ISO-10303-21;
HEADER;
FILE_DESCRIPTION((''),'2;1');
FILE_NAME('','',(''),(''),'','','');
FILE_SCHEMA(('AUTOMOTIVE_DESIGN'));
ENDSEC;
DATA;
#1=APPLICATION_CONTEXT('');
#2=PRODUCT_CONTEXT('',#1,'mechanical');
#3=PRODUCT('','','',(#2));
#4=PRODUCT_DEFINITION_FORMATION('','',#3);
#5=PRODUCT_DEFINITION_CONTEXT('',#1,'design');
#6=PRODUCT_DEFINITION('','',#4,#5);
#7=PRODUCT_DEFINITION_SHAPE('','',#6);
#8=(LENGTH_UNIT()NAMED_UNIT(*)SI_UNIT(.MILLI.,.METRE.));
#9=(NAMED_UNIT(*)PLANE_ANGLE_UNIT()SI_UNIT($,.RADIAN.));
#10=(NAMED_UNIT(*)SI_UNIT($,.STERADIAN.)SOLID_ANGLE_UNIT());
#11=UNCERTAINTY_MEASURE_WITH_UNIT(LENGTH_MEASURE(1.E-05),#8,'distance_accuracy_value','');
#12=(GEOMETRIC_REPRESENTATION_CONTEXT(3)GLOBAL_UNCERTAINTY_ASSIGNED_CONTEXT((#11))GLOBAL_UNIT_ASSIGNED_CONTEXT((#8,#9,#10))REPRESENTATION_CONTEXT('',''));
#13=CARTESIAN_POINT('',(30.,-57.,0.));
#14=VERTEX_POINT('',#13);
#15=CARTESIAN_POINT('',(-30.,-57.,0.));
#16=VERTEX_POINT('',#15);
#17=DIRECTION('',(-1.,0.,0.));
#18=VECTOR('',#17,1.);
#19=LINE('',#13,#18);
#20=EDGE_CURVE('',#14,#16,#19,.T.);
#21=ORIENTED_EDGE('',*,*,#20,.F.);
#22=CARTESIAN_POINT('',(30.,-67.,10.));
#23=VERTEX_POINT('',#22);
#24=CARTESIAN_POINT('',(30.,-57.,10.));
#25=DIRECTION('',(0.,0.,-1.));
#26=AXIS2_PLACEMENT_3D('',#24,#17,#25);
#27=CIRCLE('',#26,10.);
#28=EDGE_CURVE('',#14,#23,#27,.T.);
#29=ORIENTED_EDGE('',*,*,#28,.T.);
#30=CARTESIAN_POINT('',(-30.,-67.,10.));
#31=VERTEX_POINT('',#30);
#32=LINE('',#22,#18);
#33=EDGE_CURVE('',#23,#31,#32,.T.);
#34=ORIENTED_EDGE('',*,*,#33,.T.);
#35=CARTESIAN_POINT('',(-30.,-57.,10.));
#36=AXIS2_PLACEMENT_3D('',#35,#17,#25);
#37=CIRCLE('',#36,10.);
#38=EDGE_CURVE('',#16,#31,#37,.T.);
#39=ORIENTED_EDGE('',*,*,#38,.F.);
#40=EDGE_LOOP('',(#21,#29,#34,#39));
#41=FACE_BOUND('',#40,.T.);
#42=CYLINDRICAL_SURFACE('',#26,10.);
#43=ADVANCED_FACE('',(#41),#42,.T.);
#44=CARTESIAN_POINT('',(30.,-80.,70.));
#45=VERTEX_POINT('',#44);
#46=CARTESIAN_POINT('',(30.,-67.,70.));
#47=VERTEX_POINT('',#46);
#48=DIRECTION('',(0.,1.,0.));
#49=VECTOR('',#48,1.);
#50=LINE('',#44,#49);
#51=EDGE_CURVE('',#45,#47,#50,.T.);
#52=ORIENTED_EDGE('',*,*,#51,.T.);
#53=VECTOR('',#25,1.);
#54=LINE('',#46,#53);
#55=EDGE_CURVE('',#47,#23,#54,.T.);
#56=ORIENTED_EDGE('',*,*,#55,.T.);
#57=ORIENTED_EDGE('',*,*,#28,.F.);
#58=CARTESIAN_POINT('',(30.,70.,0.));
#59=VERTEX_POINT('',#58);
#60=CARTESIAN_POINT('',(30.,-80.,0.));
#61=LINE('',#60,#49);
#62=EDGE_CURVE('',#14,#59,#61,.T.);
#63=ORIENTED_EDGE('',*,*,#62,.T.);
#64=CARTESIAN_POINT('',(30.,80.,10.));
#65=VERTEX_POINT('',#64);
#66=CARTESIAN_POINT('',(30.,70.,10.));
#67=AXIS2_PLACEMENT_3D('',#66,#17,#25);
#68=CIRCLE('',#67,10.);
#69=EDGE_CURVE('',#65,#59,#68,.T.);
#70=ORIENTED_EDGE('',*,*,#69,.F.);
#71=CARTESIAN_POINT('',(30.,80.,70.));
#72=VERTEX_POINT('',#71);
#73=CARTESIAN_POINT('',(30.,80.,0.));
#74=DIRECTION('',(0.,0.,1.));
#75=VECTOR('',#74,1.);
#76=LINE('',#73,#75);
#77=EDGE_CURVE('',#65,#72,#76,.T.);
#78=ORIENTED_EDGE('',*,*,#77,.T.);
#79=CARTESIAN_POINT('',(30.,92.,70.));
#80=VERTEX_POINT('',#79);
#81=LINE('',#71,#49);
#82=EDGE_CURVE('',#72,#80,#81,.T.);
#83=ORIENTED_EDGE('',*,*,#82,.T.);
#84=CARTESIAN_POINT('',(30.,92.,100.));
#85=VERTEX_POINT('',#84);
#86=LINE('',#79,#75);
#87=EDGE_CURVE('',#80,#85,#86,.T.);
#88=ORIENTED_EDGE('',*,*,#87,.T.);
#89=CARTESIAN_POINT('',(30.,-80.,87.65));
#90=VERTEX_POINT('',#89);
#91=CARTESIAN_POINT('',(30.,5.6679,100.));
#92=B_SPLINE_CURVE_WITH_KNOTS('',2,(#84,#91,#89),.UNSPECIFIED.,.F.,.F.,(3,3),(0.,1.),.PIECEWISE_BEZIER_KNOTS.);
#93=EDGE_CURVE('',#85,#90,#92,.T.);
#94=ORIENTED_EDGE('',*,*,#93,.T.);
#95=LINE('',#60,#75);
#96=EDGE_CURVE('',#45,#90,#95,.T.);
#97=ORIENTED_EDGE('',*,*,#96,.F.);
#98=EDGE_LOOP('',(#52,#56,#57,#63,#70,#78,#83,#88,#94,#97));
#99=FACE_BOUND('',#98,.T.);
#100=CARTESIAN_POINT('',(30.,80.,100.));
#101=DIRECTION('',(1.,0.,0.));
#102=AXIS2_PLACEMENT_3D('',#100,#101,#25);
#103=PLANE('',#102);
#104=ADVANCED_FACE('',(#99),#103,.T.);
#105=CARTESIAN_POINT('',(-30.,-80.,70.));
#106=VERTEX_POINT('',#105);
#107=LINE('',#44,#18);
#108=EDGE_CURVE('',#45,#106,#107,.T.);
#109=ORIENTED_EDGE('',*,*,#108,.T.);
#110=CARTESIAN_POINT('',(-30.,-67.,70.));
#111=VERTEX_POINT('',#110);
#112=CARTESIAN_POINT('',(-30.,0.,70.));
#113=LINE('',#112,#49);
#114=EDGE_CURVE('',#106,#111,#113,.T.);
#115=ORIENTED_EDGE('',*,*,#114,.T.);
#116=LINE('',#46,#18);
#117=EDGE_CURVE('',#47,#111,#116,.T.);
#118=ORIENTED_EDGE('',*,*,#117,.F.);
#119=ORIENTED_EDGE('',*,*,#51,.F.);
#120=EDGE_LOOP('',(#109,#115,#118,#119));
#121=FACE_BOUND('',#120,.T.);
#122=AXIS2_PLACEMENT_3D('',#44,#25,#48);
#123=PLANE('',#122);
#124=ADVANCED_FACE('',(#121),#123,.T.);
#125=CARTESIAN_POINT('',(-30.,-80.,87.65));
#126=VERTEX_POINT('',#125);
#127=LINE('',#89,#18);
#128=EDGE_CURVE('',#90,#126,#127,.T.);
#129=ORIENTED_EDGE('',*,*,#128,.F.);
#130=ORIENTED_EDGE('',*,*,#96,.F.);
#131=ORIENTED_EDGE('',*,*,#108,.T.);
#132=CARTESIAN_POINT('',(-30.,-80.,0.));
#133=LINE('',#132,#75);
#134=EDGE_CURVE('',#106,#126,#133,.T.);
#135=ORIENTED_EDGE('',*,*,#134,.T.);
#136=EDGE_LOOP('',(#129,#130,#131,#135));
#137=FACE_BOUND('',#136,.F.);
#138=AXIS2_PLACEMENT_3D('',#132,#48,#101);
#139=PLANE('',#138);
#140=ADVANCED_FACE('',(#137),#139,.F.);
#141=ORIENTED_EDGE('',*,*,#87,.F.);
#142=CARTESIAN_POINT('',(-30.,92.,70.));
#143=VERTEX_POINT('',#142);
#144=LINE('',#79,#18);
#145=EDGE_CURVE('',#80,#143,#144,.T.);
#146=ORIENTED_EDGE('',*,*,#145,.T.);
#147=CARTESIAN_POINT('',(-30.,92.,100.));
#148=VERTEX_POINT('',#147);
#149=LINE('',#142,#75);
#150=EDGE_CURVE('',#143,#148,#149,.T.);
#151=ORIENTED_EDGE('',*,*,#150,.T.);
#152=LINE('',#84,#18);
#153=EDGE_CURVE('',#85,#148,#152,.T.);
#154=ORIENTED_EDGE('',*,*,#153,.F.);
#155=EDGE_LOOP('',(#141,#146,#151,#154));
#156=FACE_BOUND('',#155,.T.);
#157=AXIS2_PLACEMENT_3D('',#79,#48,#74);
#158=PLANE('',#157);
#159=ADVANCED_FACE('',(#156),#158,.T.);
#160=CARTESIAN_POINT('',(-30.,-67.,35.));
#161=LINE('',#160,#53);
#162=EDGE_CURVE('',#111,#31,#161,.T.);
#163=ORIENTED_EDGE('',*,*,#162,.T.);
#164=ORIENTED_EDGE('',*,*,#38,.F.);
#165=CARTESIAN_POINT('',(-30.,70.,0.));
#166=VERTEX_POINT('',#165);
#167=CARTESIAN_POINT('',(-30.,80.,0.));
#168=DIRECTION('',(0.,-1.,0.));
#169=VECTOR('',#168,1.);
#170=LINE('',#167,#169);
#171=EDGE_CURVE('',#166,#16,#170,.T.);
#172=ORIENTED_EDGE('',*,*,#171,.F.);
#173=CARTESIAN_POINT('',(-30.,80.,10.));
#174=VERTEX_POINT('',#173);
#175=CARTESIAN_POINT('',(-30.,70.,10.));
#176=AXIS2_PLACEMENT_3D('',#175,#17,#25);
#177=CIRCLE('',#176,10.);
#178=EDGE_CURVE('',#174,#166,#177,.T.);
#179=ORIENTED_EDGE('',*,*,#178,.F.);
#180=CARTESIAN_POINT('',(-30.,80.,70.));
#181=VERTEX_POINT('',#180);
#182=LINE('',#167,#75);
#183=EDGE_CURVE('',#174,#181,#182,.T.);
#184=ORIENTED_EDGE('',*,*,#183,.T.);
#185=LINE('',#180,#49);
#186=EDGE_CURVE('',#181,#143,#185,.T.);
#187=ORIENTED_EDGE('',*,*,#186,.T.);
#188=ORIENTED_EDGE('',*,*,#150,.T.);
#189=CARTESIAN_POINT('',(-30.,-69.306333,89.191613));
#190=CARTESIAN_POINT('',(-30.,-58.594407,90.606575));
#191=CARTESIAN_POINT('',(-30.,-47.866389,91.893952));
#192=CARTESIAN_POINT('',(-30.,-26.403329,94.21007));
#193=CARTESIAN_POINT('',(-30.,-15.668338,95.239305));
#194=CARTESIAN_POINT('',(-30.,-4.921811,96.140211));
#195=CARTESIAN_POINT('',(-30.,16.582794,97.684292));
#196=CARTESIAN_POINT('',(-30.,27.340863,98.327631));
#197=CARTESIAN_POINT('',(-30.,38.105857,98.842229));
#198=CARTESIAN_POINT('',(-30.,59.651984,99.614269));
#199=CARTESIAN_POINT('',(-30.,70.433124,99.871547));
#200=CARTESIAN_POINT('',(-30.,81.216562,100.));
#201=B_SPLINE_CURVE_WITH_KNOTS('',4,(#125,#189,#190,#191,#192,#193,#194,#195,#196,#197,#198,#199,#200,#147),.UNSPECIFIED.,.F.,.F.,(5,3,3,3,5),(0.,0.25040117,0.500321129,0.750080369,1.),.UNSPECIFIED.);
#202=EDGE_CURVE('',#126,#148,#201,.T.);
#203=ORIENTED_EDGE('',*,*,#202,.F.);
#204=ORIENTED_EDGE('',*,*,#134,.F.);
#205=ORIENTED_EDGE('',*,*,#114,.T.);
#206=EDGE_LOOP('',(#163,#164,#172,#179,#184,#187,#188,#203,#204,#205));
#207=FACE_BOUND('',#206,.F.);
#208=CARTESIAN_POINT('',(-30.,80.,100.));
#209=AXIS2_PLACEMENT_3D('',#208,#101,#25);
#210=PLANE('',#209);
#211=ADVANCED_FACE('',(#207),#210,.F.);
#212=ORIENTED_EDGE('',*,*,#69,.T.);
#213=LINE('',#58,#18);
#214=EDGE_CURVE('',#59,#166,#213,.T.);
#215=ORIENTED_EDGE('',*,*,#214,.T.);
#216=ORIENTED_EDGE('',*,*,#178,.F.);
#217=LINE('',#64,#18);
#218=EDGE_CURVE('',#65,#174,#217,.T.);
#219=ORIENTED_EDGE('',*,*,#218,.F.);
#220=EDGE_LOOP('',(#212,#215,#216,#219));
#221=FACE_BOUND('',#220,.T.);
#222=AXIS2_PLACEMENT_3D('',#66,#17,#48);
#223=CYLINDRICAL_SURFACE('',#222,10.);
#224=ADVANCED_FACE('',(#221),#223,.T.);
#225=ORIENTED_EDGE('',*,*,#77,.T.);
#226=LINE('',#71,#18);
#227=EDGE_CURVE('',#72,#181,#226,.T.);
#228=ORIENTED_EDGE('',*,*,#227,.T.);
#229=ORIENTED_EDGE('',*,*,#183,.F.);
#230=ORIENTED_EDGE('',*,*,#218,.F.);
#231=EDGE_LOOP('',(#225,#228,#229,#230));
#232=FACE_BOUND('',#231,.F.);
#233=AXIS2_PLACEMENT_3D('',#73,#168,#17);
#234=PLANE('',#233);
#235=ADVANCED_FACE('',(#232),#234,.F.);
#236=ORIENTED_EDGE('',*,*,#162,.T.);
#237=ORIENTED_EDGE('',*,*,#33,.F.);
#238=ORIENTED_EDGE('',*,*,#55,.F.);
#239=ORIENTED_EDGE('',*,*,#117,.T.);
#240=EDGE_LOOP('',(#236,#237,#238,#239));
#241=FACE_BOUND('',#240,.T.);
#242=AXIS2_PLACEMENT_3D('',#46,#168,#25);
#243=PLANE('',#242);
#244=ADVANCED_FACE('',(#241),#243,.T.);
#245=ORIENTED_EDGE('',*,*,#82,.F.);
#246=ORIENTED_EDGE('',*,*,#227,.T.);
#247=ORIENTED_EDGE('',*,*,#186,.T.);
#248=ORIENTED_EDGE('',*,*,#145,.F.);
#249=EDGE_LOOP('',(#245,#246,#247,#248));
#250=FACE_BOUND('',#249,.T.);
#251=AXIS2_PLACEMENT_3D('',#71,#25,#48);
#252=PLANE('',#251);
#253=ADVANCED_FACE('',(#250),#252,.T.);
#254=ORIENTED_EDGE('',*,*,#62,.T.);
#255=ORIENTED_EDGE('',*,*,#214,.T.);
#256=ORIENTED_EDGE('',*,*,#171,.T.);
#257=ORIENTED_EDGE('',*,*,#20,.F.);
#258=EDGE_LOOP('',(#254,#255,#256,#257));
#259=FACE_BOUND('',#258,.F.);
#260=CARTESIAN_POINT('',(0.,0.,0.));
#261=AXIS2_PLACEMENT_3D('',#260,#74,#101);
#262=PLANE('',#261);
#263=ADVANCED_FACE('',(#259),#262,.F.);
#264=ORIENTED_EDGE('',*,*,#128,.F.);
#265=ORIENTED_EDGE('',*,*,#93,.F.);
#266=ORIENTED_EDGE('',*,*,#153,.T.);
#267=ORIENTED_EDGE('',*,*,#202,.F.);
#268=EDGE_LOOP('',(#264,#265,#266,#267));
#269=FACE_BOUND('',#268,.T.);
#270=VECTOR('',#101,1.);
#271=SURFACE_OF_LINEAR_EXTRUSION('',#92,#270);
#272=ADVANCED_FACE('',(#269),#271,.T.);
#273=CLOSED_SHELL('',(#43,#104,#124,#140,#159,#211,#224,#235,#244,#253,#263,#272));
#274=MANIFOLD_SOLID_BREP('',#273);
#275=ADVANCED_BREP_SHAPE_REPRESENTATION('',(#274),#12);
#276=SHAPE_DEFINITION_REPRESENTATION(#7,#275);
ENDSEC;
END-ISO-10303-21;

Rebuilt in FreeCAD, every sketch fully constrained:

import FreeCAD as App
import Part
import Sketcher
Q = App.Units.Quantity


def edges_at(feature, points):
    """Names of the edges that pass closest to the given points."""
    edges = feature.Shape.Edges
    near = lambda p: min(range(len(edges)), key=lambda i: edges[i].distToShape(Part.Vertex(*p))[0])
    return sorted({f"Edge{near(p) + 1}" for p in points})


def add_polygon(sketch, points):
    """Adds a closed chain of lines whose ends are joined by coincident constraints."""
    first, n = sketch.GeometryCount, len(points)
    for a, b in zip(points, points[1:] + points[:1]):
        sketch.addGeometry(Part.LineSegment(App.Vector(*a, 0), App.Vector(*b, 0)), False)
    for i in range(n):
        sketch.addConstraint(Sketcher.Constraint("Coincident", first + i, 2, first + (i + 1) % n, 1))

doc = App.newDocument("Part")
body = doc.addObject("PartDesign::Body", "Body")

sketch1 = body.newObject("Sketcher::SketchObject", "Sketch")
sketch1.AttachmentSupport = (doc.getObject("XY_Plane"), [""])
sketch1.MapMode = "FlatFace"
add_polygon(sketch1, [(-30, 80), (-30, -80), (30, -80), (30, 80)])
sketch1.addConstraint([
    Sketcher.Constraint("Vertical", 0),
    Sketcher.Constraint("Horizontal", 1),
    Sketcher.Constraint("Vertical", 2),
    Sketcher.Constraint("Horizontal", 3),
    Sketcher.Constraint("Symmetric", 0, 2, 2, 2, -1, 1),
    Sketcher.Constraint("DistanceX", 1, 1, 1, 2, Q("60 mm")),
    Sketcher.Constraint("DistanceY", 0, 2, 0, 1, Q("160 mm")),
])
pad1 = body.newObject("PartDesign::Pad", "Pad")
pad1.Profile = sketch1
pad1.Length = 100

sketch2 = body.newObject("Sketcher::SketchObject", "Sketch001")
sketch2.AttachmentSupport = (doc.getObject("YZ_Plane"), [""])
sketch2.MapMode = "FlatFace"
sketch2.AttachmentOffset = App.Placement(App.Vector(0, 0, 30), App.Rotation())
add_polygon(sketch2, [(-80, 70), (-80, 0), (-67, 0), (-67, 70)])
sketch2.addConstraint([
    Sketcher.Constraint("Vertical", 0),
    Sketcher.Constraint("Horizontal", 1),
    Sketcher.Constraint("Vertical", 2),
    Sketcher.Constraint("Horizontal", 3),
    Sketcher.Constraint("PointOnObject", 0, 2, -1),
    Sketcher.Constraint("DistanceX", 1, 1, 1, 2, Q("13 mm")),
    Sketcher.Constraint("DistanceY", 0, 2, 0, 1, Q("70 mm")),
    Sketcher.Constraint("DistanceX", 0, 2, -1, 1, Q("80 mm")),
])
pocket1 = body.newObject("PartDesign::Pocket", "Pocket")
pocket1.Profile = sketch2
pocket1.Type = "ThroughAll"

sketch3 = body.newObject("Sketcher::SketchObject", "Sketch002")
sketch3.AttachmentSupport = (doc.getObject("YZ_Plane"), [""])
sketch3.MapMode = "FlatFace"
sketch3.AttachmentOffset = App.Placement(App.Vector(0, 0, 30), App.Rotation())
add_polygon(sketch3, [(80, 100), (80, 70), (92, 70), (92, 100)])
sketch3.addConstraint([
    Sketcher.Constraint("Vertical", 0),
    Sketcher.Constraint("Horizontal", 1),
    Sketcher.Constraint("Vertical", 2),
    Sketcher.Constraint("Horizontal", 3),
    Sketcher.Constraint("DistanceX", 1, 1, 1, 2, Q("12 mm")),
    Sketcher.Constraint("DistanceY", 0, 2, 0, 1, Q("30 mm")),
    Sketcher.Constraint("DistanceX", -1, 1, 0, 2, Q("80 mm")),
    Sketcher.Constraint("DistanceY", -1, 1, 0, 2, Q("70 mm")),
])
pad2 = body.newObject("PartDesign::Pad", "Pad001")
pad2.Profile = sketch3
pad2.Length = 60
pad2.Reversed = True
doc.recompute()

fillet = body.newObject("PartDesign::Fillet", "Fillet")
fillet.Base = (pad2, edges_at(pad2, [(0, -67, 0), (0, 80, 0)]))
fillet.Radius = 10

sketch4 = body.newObject("Sketcher::SketchObject", "Sketch003")
sketch4.AttachmentSupport = (doc.getObject("YZ_Plane"), [""])
sketch4.MapMode = "FlatFace"
sketch4.AttachmentOffset = App.Placement(App.Vector(0, 0, 30), App.Rotation())
sketch4.addGeometry([
    Part.LineSegment(App.Vector(92, 100, 0), App.Vector(-80, 100, 0)),
    Part.LineSegment(App.Vector(-80, 100, 0), App.Vector(-80, 87.65, 0)),
    Part.BSplineCurve([App.Vector(92, 100, 0), App.Vector(5.6679, 100, 0), App.Vector(-80, 87.65, 0)], [3, 3], [0, 1], False, 2, [1, 1, 1], False),
], False)
sketch4.addConstraint([
    Sketcher.Constraint("Block", 2),
    Sketcher.Constraint("Coincident", 0, 2, 1, 1),
    Sketcher.Constraint("Coincident", 1, 2, 2, 2),
    Sketcher.Constraint("Coincident", 2, 1, 0, 1),
    Sketcher.Constraint("Horizontal", 0),
    Sketcher.Constraint("Vertical", 1),
])
pocket2 = body.newObject("PartDesign::Pocket", "Pocket001")
pocket2.Profile = sketch4
pocket2.Type = "UpToFirst"

doc.recompute()
